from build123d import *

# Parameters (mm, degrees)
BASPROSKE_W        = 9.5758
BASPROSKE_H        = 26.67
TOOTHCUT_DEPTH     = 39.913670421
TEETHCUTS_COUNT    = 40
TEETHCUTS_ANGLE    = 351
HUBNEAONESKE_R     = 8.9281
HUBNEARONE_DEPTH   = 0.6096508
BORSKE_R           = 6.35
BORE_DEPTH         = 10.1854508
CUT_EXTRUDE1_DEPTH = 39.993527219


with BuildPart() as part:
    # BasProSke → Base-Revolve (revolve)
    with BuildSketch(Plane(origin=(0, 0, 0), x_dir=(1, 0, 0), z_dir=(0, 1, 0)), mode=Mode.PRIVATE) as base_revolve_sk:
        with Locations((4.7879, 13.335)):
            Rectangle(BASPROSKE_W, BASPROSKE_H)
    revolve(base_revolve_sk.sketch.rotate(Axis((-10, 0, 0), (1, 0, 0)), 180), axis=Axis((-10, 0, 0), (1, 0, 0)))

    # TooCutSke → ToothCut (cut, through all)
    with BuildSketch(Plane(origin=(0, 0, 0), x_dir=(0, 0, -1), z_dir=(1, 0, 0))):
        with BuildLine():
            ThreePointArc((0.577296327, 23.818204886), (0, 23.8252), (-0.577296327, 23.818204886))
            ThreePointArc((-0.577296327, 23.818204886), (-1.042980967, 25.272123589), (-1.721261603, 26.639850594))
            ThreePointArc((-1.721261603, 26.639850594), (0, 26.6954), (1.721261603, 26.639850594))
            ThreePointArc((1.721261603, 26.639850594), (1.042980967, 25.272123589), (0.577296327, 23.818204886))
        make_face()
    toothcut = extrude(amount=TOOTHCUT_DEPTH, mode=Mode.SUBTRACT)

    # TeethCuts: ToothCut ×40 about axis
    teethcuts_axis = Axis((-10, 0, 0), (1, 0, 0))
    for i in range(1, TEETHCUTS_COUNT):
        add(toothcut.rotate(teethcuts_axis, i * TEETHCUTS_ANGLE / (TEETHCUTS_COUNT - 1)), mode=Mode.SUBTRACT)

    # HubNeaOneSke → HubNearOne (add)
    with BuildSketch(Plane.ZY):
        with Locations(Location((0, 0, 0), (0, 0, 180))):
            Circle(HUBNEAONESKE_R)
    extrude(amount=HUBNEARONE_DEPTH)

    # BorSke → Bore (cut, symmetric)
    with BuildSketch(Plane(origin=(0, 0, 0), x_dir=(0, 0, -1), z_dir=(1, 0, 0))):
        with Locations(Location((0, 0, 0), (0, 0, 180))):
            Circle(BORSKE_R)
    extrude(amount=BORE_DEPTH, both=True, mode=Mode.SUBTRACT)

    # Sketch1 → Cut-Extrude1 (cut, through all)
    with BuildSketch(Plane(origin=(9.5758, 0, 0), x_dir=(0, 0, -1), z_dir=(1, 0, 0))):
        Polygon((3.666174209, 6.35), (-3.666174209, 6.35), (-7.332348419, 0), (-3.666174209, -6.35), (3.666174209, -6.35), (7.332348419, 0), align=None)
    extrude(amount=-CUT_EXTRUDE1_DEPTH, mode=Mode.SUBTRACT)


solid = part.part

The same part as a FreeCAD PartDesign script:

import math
import FreeCAD as App
import Part
import Sketcher
Q = App.Units.Quantity


def add_polygon(sketch, points):
    """Adds a closed chain of lines whose ends are joined by coincident constraints."""
    first, n = sketch.GeometryCount, len(points)
    for a, b in zip(points, points[1:] + points[:1]):
        sketch.addGeometry(Part.LineSegment(App.Vector(*a, 0), App.Vector(*b, 0)), False)
    for i in range(n):
        sketch.addConstraint(Sketcher.Constraint("Coincident", first + i, 2, first + (i + 1) % n, 1))

doc = App.newDocument("Part")
body = doc.addObject("PartDesign::Body", "Body")

# Sketch on XZ plane
sketch1 = body.newObject("Sketcher::SketchObject", "Sketch")
sketch1.AttachmentSupport = (doc.getObject("XZ_Plane"), [""])
sketch1.MapMode = "FlatFace"
add_polygon(sketch1, [(0, -26.67), (0, 0), (9.5758, 0), (9.5758, -26.67)])  # lines 0-3
sketch1.addConstraint([
    Sketcher.Constraint("Vertical", 0),
    Sketcher.Constraint("Horizontal", 1),
    Sketcher.Constraint("Vertical", 2),
    Sketcher.Constraint("Horizontal", 3),
    Sketcher.Constraint("Coincident", 0, 2, -1, 1),
    Sketcher.Constraint("DistanceY", 0, 1, 0, 2, Q("1.05 in")),
    Sketcher.Constraint("DistanceX", 1, 1, 1, 2, Q("0.377 in")),
])
revolution = body.newObject("PartDesign::Revolution", "Revolution")
revolution.Profile = sketch1
revolution.ReferenceAxis = (sketch1, ["H_Axis"])
revolution.Angle = 360

# Sketch on YZ plane
sketch2 = body.newObject("Sketcher::SketchObject", "Sketch001")
sketch2.AttachmentSupport = (doc.getObject("YZ_Plane"), [""])
sketch2.MapMode = "FlatFace"
sketch2.addGeometry([
    Part.ArcOfCircle(Part.Circle(App.Vector(0, 0, 0), App.Vector(0, 0, 1), 23.8252), math.radians(-1.388441), math.radians(1.388441)),
    Part.ArcOfCircle(Part.Circle(App.Vector(21.454802, -10.458588, 0), App.Vector(0, 0, 1), 10.16), math.radians(59.313562), math.radians(76.548726)),
    Part.ArcOfCircle(Part.Circle(App.Vector(0, 0, 0), App.Vector(0, 0, 1), 26.6954), math.radians(-3.696872), math.radians(3.696872)),
    Part.ArcOfCircle(Part.Circle(App.Vector(21.454802, 10.458588, 0), App.Vector(0, 0, 1), 10.16), math.radians(-76.548726), math.radians(-59.313562)),
], False)
sketch2.addConstraint([
    Sketcher.Constraint("Coincident", 0, 1, 1, 2),
    Sketcher.Constraint("Coincident", 1, 1, 2, 1),
    Sketcher.Constraint("Coincident", 2, 2, 3, 2),
    Sketcher.Constraint("Coincident", 3, 1, 0, 2),
    Sketcher.Constraint("Coincident", 0, 3, -1, 1),
    Sketcher.Constraint("Coincident", 2, 3, -1, 1),
    Sketcher.Constraint("Equal", 1, 3),
    Sketcher.Constraint("Symmetric", 1, 3, 3, 3, -1),
    Sketcher.Constraint("Radius", 1, Q("0.4 in")),
    Sketcher.Constraint("Radius", 0, Q("0.938 in")),
    Sketcher.Constraint("Radius", 2, Q("1.051 in")),
    Sketcher.Constraint("DistanceY", 1, 3, -1, 1, 10.458588),
    Sketcher.Constraint("DistanceX", -1, 1, 1, 1, 26.639851),
])
pocket1 = body.newObject("PartDesign::Pocket", "Pocket")
pocket1.Profile = sketch2
pocket1.Type = "ThroughAll"
pocket1.Reversed = True
doc.recompute()

polarpattern = body.newObject("PartDesign::PolarPattern", "PolarPattern")
polarpattern.Originals = [pocket1]
polarpattern.Axis = (doc.getObject("X_Axis"), [""])
polarpattern.Angle = 360
polarpattern.Occurrences = 40
body.Tip = polarpattern

# Sketch on YZ plane
sketch3 = body.newObject("Sketcher::SketchObject", "Sketch002")
sketch3.AttachmentSupport = (doc.getObject("YZ_Plane"), [""])
sketch3.MapMode = "FlatFace"
sketch3.addGeometry(Part.Circle(App.Vector(0, 0, 0), App.Vector(0, 0, 1), 8.9281), False)
sketch3.addConstraint([
    Sketcher.Constraint("Coincident", 0, 3, -1, 1),
    Sketcher.Constraint("Diameter", 0, Q("0.703 in")),
])
pad1 = body.newObject("PartDesign::Pad", "Pad")
pad1.Profile = sketch3
pad1.Length = 0.609651
pad1.Reversed = True

# Sketch on YZ plane
sketch4 = body.newObject("Sketcher::SketchObject", "Sketch003")
sketch4.AttachmentSupport = (doc.getObject("YZ_Plane"), [""])
sketch4.MapMode = "FlatFace"
sketch4.addGeometry(Part.Circle(App.Vector(0, 0, 0), App.Vector(0, 0, 1), 6.35), False)
sketch4.addConstraint([
    Sketcher.Constraint("Coincident", 0, 3, -1, 1),
    Sketcher.Constraint("Diameter", 0, Q("0.5 in")),
])
pocket2 = body.newObject("PartDesign::Pocket", "Pocket001")
pocket2.Profile = sketch4
pocket2.Length = 20.370902
pocket2.Midplane = True

# Sketch on YZ plane
sketch5 = body.newObject("Sketcher::SketchObject", "Sketch004")
sketch5.AttachmentSupport = (doc.getObject("YZ_Plane"), [""])
sketch5.MapMode = "FlatFace"
sketch5.AttachmentOffset = App.Placement(App.Vector(0, 0, 0.377 * 25.4), App.Rotation())
add_polygon(sketch5, [(6.35, -3.666174), (6.35, 3.666174), (0, 7.332348), (-6.35, 3.666174), (-6.35, -3.666174), (0, -7.332348)])  # lines 0-5
sketch5.addConstraint([
    Sketcher.Constraint("Vertical", 0),
    Sketcher.Constraint("Vertical", 3),
    Sketcher.Constraint("Symmetric", 0, 2, 3, 2, -1, 1),
    Sketcher.Constraint("Symmetric", 1, 2, 4, 2, -1, 1),
    Sketcher.Constraint("PointOnObject", 1, 2, -2),
    Sketcher.Constraint("Parallel", 2, 5),
    Sketcher.Constraint("Horizontal", 0, 2, 2, 2),
    Sketcher.Constraint("Angle", 1, Q("150 deg")),
    Sketcher.Constraint("DistanceX", 2, 2, 0, 2, Q("0.5 in")),
    Sketcher.Constraint("DistanceY", 0, 1, 0, 2, 7.332348),
])
pocket3 = body.newObject("PartDesign::Pocket", "Pocket002")
pocket3.Profile = sketch5
pocket3.Type = "ThroughAll"

doc.recompute()
